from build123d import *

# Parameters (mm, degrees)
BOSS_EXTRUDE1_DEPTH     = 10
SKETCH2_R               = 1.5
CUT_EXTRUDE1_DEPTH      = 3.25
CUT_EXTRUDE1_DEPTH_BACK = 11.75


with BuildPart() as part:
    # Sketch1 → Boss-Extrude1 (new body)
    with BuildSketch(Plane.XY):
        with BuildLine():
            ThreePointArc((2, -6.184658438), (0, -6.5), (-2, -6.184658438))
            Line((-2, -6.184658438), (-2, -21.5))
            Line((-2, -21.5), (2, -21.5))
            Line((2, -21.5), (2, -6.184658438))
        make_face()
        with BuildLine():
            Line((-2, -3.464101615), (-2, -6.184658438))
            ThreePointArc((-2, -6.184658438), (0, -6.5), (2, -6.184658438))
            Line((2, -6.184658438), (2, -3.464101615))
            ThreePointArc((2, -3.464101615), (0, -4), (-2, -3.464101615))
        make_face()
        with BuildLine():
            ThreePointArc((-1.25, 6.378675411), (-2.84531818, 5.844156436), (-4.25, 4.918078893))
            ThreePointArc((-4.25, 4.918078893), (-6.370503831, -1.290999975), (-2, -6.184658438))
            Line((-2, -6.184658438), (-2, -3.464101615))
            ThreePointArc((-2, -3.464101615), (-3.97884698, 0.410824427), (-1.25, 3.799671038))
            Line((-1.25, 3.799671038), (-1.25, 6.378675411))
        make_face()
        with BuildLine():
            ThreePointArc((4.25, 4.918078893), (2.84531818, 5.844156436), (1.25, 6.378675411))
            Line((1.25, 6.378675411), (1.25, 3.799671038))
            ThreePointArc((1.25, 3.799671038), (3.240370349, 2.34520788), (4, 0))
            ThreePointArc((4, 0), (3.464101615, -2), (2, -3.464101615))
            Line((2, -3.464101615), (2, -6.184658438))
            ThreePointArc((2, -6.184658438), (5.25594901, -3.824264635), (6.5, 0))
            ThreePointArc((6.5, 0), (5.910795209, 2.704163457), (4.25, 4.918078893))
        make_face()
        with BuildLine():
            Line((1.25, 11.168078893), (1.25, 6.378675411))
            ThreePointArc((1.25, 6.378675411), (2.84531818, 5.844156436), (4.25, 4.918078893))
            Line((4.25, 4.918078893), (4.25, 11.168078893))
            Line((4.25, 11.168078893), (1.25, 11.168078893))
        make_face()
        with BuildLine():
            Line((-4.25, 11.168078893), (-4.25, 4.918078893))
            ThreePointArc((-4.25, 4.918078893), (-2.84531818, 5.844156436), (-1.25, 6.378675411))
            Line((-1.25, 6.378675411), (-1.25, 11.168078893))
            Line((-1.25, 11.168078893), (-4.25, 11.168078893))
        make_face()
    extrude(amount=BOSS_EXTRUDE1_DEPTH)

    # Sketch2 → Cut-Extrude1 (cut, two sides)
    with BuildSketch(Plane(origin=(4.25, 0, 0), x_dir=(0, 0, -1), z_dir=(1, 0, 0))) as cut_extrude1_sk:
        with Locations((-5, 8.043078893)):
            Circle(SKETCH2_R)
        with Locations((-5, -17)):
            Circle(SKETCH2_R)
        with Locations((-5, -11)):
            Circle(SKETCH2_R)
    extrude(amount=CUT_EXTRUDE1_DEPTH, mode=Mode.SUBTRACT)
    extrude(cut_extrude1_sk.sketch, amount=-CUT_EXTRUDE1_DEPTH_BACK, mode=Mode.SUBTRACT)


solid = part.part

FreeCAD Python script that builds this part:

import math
import FreeCAD as App
import Part
import Sketcher
from FreeCAD import Vector
Q = App.Units.Quantity

doc = App.newDocument("Part")
body = doc.addObject("PartDesign::Body", "Body")

sketch1 = doc.addObject("Sketcher::SketchObject", "Sketch")
body.addObject(sketch1)
sketch1.AttachmentSupport = (doc.XY_Plane, [""])
sketch1.MapMode = "FlatFace"
sketch1.addGeometry([
    Part.LineSegment(Vector(-2, -21.5, 0), Vector(2, -21.5, 0)),
    Part.LineSegment(Vector(2, -21.5, 0), Vector(2, -6.2, 0)),
    Part.ArcOfCircle(Part.Circle(Vector(0, 0, 0), Vector(0, 0, 1), 6.5), math.radians(-72), math.radians(0)),
    Part.ArcOfCircle(Part.Circle(Vector(0, 0, 0), Vector(0, 0, 1), 6.5), math.radians(0), math.radians(49)),
    Part.LineSegment(Vector(4.2, 4.9, 0), Vector(4.2, 11.2, 0)),
    Part.LineSegment(Vector(4.2, 11.2, 0), Vector(1.2, 11.2, 0)),
    Part.LineSegment(Vector(1.2, 11.2, 0), Vector(1.2, 3.8, 0)),
    Part.ArcOfCircle(Part.Circle(Vector(0, 0, 0), Vector(0, 0, 1), 4), math.radians(0), math.radians(72)),
    Part.ArcOfCircle(Part.Circle(Vector(0, 0, 0), Vector(0, 0, 1), 4), math.radians(-60), math.radians(0)),
    Part.ArcOfCircle(Part.Circle(Vector(0, 0, 0), Vector(0, 0, 1), 4), math.radians(-120), math.radians(-60)),
    Part.ArcOfCircle(Part.Circle(Vector(0, 0, 0), Vector(0, 0, 1), 4), math.radians(108), math.radians(240)),
    Part.LineSegment(Vector(-1.2, 3.8, 0), Vector(-1.2, 11.2, 0)),
    Part.LineSegment(Vector(-1.2, 11.2, 0), Vector(-4.2, 11.2, 0)),
    Part.LineSegment(Vector(-4.2, 11.2, 0), Vector(-4.2, 4.9, 0)),
    Part.ArcOfCircle(Part.Circle(Vector(0, 0, 0), Vector(0, 0, 1), 6.5), math.radians(131), math.radians(252)),
    Part.LineSegment(Vector(-2, -6.2, 0), Vector(-2, -21.5, 0)),
], False)
sketch1.addConstraint([
    Sketcher.Constraint("Coincident", 0, 2, 1, 1),
    Sketcher.Constraint("Coincident", 1, 2, 2, 1),
    Sketcher.Constraint("Tangent", 2, 2, 3, 1),
    Sketcher.Constraint("Coincident", 3, 2, 4, 1),
    Sketcher.Constraint("Coincident", 4, 2, 5, 1),
    Sketcher.Constraint("Coincident", 5, 2, 6, 1),
    Sketcher.Constraint("Coincident", 6, 2, 7, 2),
    Sketcher.Constraint("Tangent", 7, 1, 8, 2),
    Sketcher.Constraint("Tangent", 8, 1, 9, 2),
    Sketcher.Constraint("Tangent", 9, 1, 10, 2),
    Sketcher.Constraint("Coincident", 10, 1, 11, 1),
    Sketcher.Constraint("Coincident", 11, 2, 12, 1),
    Sketcher.Constraint("Coincident", 12, 2, 13, 1),
    Sketcher.Constraint("Coincident", 13, 2, 14, 1),
    Sketcher.Constraint("Coincident", 14, 2, 15, 1),
    Sketcher.Constraint("Coincident", 15, 2, 0, 1),
    Sketcher.Constraint("Horizontal", 0),
    Sketcher.Constraint("Vertical", 1),
    Sketcher.Constraint("Vertical", 4),
    Sketcher.Constraint("Horizontal", 5),
    Sketcher.Constraint("Vertical", 6),
    Sketcher.Constraint("Vertical", 11),
    Sketcher.Constraint("Horizontal", 12),
    Sketcher.Constraint("Vertical", 13),
    Sketcher.Constraint("Vertical", 15),
    Sketcher.Constraint("Coincident", 2, 3, -1, 1),
    Sketcher.Constraint("Coincident", 7, 3, -1, 1),
    Sketcher.Constraint("Coincident", 9, 3, -1, 1),
    Sketcher.Constraint("Coincident", 14, 3, -1, 1),
    Sketcher.Constraint("Equal", 2, 3),
    Sketcher.Constraint("Equal", 9, 10),
    Sketcher.Constraint("Equal", 3, 14),
    Sketcher.Constraint("Symmetric", 5, 2, 11, 2, -2),
    Sketcher.Constraint("PointOnObject", 2, 2, -1),
    Sketcher.Constraint("PointOnObject", 7, 1, -1),
    Sketcher.Constraint("Horizontal", 8, 1, 9, 1),
    Sketcher.Constraint("Horizontal", 3, 2, 13, 2),
    Sketcher.Constraint("Horizontal", 1, 2, 14, 2),
    Sketcher.Constraint("Vertical", 1, 2, 8, 1),
    Sketcher.Constraint("Radius", 7, Q("4 mm")),
    Sketcher.Constraint("Radius", 2, Q("6.5 mm")),
    Sketcher.Constraint("DistanceX", 0, 1, 0, 2, Q("4 mm")),
    Sketcher.Constraint("DistanceX", 5, 2, 5, 1, Q("3 mm")),
    Sketcher.Constraint("DistanceY", 4, 1, 4, 2, Q("6.25 mm")),
    Sketcher.Constraint("DistanceY", 0, 2, -1, 1, Q("21.5 mm")),
    Sketcher.Constraint("DistanceX", 10, 1, 6, 2, Q("2.5 mm")),
])
pad1 = doc.addObject("PartDesign::Pad", "Pad")
body.addObject(pad1)
pad1.Profile = sketch1
pad1.Length = 10

sketch2 = doc.addObject("Sketcher::SketchObject", "Sketch001")
body.addObject(sketch2)
sketch2.AttachmentSupport = (doc.YZ_Plane, [""])
sketch2.MapMode = "FlatFace"
sketch2.AttachmentOffset = App.Placement(Vector(0, 0, 4.25), App.Rotation())
sketch2.addGeometry([
    Part.Circle(Vector(8, 5, 0), Vector(0, 0, 1), 1.5),
    Part.Circle(Vector(-17, 5, 0), Vector(0, 0, 1), 1.5),
    Part.Circle(Vector(-11, 5, 0), Vector(0, 0, 1), 1.5),
], False)
sketch2.addConstraint([
    Sketcher.Constraint("Equal", 0, 1),
    Sketcher.Constraint("Equal", 1, 2),
    Sketcher.Constraint("Horizontal", 0, 3, 1, 3),
    Sketcher.Constraint("Horizontal", 1, 3, 2, 3),
    Sketcher.Constraint("Diameter", 0, Q("3 mm")),
    Sketcher.Constraint("DistanceY", -1, 1, 0, 3, Q("5 mm")),
    Sketcher.Constraint("DistanceX", 1, 3, -1, 1, Q("17 mm")),
    Sketcher.Constraint("DistanceX", 2, 3, -1, 1, Q("11 mm")),
    Sketcher.Constraint("DistanceX", -1, 1, 0, 3, Q("8.043079 mm")),
])
pocket1 = doc.addObject("PartDesign::Pocket", "Pocket")
body.addObject(pocket1)
pocket1.Profile = sketch2
pocket1.Type = "ThroughAll"
pocket1.Midplane = True

doc.recompute()
